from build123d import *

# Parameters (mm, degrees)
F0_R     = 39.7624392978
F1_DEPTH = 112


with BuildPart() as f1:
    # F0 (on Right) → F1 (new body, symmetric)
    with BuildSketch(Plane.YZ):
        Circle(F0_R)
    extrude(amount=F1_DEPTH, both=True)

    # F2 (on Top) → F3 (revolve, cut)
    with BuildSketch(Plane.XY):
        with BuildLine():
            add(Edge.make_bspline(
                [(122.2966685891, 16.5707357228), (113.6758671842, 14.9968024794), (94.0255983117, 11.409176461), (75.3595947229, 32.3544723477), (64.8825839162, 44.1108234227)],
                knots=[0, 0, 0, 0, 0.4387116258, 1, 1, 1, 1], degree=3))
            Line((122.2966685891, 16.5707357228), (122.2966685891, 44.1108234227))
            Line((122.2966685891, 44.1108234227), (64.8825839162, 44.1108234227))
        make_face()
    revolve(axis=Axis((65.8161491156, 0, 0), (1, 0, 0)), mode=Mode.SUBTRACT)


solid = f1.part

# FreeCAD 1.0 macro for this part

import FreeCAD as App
import Part
import Sketcher
from FreeCAD import Vector
Q = App.Units.Quantity

doc = App.newDocument("Part")
body = doc.addObject("PartDesign::Body", "Body")

# Sketch on YZ plane
sketch1 = body.newObject("Sketcher::SketchObject", "Sketch")
sketch1.AttachmentSupport = (doc.getObject("YZ_Plane"), [""])
sketch1.MapMode = "FlatFace"
sketch1.addGeometry(Part.Circle(Vector(0, 0, 0), Vector(0, 0, 1), 40), False)
sketch1.addConstraint([
    Sketcher.Constraint("Coincident", 0, 3, -1, 1),
    Sketcher.Constraint("Diameter", 0, Q("79.524879 mm")),
])
pad1 = body.newObject("PartDesign::Pad", "Pad")
pad1.Profile = sketch1
pad1.Length = 224
pad1.Midplane = True

# Sketch on XY plane
sketch2 = body.newObject("Sketcher::SketchObject", "Sketch001")
sketch2.AttachmentSupport = (doc.getObject("XY_Plane"), [""])
sketch2.MapMode = "FlatFace"
sketch2.addGeometry([
    Part.BSplineCurve([Vector(122.296669, 16.570736, 0), Vector(113.675867, 14.996802, 0), Vector(94.025598, 11.409176, 0), Vector(75.359595, 32.354472, 0), Vector(64.882584, 44.110823, 0)], [4, 1, 4], [0, 0.438711626, 1], False, 3, [1, 1, 1, 1, 1], False),
    Part.LineSegment(Vector(122.296669, 16.570736, 0), Vector(122.296669, 44.110823, 0)),
    Part.LineSegment(Vector(122.296669, 44.110823, 0), Vector(64.882584, 44.110823, 0)),
], False)
sketch2.addConstraint([
    Sketcher.Constraint("Block", 0),
    Sketcher.Constraint("Coincident", 0, 1, 1, 1),
    Sketcher.Constraint("Coincident", 1, 2, 2, 1),
    Sketcher.Constraint("Coincident", 2, 2, 0, 2),
    Sketcher.Constraint("Vertical", 1),
    Sketcher.Constraint("Horizontal", 2),
])
groove = body.newObject("PartDesign::Groove", "Groove")
groove.Profile = sketch2
groove.ReferenceAxis = (sketch2, ["H_Axis"])
groove.Angle = 360

doc.recompute()
